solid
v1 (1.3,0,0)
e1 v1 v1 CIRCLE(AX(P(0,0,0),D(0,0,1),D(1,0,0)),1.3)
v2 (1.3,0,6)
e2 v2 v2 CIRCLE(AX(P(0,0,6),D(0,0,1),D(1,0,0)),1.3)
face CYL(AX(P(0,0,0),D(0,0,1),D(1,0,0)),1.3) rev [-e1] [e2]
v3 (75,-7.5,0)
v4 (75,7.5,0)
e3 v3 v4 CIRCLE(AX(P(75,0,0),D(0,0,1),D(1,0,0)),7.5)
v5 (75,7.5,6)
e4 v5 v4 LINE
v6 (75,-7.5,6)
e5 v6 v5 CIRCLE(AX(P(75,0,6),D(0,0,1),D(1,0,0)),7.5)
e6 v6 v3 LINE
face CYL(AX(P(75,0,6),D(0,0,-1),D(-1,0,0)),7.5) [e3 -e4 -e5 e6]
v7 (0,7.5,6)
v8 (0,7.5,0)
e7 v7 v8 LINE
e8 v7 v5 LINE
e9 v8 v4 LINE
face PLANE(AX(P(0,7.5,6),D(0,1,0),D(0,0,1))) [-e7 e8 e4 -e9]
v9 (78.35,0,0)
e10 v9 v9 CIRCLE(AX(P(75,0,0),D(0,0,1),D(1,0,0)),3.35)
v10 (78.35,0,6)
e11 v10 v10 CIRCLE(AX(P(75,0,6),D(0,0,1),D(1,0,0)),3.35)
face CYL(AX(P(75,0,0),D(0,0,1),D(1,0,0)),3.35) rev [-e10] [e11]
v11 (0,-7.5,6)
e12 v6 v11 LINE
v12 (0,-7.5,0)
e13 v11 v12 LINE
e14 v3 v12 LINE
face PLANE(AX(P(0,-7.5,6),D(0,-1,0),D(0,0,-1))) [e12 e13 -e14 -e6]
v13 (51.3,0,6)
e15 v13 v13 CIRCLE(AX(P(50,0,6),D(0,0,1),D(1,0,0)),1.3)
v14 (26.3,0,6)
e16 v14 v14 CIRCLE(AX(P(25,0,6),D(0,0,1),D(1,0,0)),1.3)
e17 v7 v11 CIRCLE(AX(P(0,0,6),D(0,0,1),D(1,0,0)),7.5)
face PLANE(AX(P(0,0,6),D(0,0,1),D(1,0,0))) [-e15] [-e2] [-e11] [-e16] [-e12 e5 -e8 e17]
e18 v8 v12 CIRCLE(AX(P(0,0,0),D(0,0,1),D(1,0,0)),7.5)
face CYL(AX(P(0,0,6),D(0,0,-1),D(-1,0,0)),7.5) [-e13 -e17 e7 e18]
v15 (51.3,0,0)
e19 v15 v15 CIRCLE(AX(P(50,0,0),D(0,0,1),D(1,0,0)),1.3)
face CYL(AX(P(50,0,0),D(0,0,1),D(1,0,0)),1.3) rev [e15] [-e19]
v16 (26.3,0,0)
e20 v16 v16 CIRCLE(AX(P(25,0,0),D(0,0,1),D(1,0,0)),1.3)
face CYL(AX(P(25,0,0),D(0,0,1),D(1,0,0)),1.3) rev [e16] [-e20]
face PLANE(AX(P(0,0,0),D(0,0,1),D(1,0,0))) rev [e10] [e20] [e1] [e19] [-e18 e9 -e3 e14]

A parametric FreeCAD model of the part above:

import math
import FreeCAD as App
import Part
import Sketcher

doc = App.newDocument("Part")
body = doc.addObject("PartDesign::Body", "Body")

# Sketch on XY plane
sketch1 = doc.addObject("Sketcher::SketchObject", "Sketch")
body.addObject(sketch1)
sketch1.AttachmentSupport = (doc.XY_Plane, [""])
sketch1.MapMode = "FlatFace"
sketch1.addGeometry([
    Part.LineSegment(App.Vector(75, 7.5, 0), App.Vector(0, 7.5, 0)),
    Part.ArcOfCircle(Part.Circle(App.Vector(0, 0, 0), App.Vector(0, 0, 1), 7.5), math.radians(90), math.radians(270)),
    Part.LineSegment(App.Vector(0, -7.5, 0), App.Vector(75, -7.5, 0)),
    Part.ArcOfCircle(Part.Circle(App.Vector(75, 0, 0), App.Vector(0, 0, 1), 7.5), math.radians(-90), math.radians(90)),
], False)
sketch1.addConstraint([
    Sketcher.Constraint("Tangent", 0, 2, 1, 1),
    Sketcher.Constraint("Tangent", 1, 2, 2, 1),
    Sketcher.Constraint("Tangent", 2, 2, 3, 1),
    Sketcher.Constraint("Tangent", 3, 2, 0, 1),
    Sketcher.Constraint("Horizontal", 0),
    Sketcher.Constraint("Horizontal", 2),
    Sketcher.Constraint("Coincident", 1, 3, -1, 1),
    Sketcher.Constraint("Radius", 1, 7.5),
    Sketcher.Constraint("DistanceX", 0, 2, 0, 1, 75.0),
])
pad1 = doc.addObject("PartDesign::Pad", "Pad")
body.addObject(pad1)
pad1.Profile = sketch1
pad1.Length = 6

# Sketch on XY plane
sketch2 = doc.addObject("Sketcher::SketchObject", "Sketch001")
body.addObject(sketch2)
sketch2.AttachmentSupport = (doc.XY_Plane, [""])
sketch2.MapMode = "FlatFace"
sketch2.AttachmentOffset = App.Placement(App.Vector(0, 0, 6), App.Rotation())
sketch2.addGeometry([
    Part.Circle(App.Vector(0, 0, 0), App.Vector(0, 0, 1), 1.3),
    Part.Circle(App.Vector(75, 0, 0), App.Vector(0, 0, 1), 1.3),
], False)
sketch2.addConstraint([
    Sketcher.Constraint("Coincident", 0, 3, -1, 1),
    Sketcher.Constraint("Equal", 0, 1),
    Sketcher.Constraint("PointOnObject", 1, 3, -1),
    Sketcher.Constraint("Diameter", 0, 2.6),
    Sketcher.Constraint("DistanceX", -1, 1, 1, 3, 75.0),
])
pocket1 = doc.addObject("PartDesign::Pocket", "Pocket")
body.addObject(pocket1)
pocket1.Profile = sketch2
pocket1.Type = "ThroughAll"
doc.recompute()

linearpattern = doc.addObject("PartDesign::LinearPattern", "LinearPattern")
body.addObject(linearpattern)
linearpattern.Originals = [pocket1]
linearpattern.Direction = (doc.X_Axis, [""])
linearpattern.Mode = "offset"
linearpattern.Offset = 25
linearpattern.Occurrences = 4
body.Tip = linearpattern

# Sketch on XY plane
sketch3 = doc.addObject("Sketcher::SketchObject", "Sketch002")
body.addObject(sketch3)
sketch3.AttachmentSupport = (doc.XY_Plane, [""])
sketch3.MapMode = "FlatFace"
sketch3.AttachmentOffset = App.Placement(App.Vector(0, 0, 6), App.Rotation())
sketch3.addGeometry(Part.Circle(App.Vector(75, 0, 0), App.Vector(0, 0, 1), 3.35), False)
sketch3.addConstraint([
    Sketcher.Constraint("PointOnObject", 0, 3, -1),
    Sketcher.Constraint("Diameter", 0, 6.7),
    Sketcher.Constraint("DistanceX", -1, 1, 0, 3, 75.0),
])
pocket2 = doc.addObject("PartDesign::Pocket", "Pocket001")
body.addObject(pocket2)
pocket2.Profile = sketch3
pocket2.Type = "ThroughAll"

doc.recompute()
